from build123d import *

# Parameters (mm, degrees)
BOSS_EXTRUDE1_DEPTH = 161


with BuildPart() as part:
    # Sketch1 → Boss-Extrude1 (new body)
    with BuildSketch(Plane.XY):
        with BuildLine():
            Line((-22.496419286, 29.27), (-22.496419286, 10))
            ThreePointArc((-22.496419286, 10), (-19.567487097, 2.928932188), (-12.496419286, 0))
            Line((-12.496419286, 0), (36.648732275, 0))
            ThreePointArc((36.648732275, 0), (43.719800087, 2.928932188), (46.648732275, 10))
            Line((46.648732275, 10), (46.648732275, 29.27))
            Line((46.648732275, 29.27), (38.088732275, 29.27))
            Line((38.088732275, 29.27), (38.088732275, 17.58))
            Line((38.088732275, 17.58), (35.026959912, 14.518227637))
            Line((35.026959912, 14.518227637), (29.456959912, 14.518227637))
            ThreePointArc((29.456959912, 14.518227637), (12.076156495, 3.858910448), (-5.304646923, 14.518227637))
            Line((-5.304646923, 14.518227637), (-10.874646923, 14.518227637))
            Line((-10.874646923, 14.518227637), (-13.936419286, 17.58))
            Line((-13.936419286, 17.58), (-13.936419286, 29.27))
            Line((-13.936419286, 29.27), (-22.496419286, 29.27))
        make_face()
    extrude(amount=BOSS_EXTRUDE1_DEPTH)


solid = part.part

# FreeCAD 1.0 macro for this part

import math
import FreeCAD as App
import Part
import Sketcher
from FreeCAD import Vector
Q = App.Units.Quantity

doc = App.newDocument("Part")
params = doc.addObject("Spreadsheet::Sheet", "Params")
for row, (alias, value) in enumerate([
    ("sketch1_radius", "10 mm"),
    ("sketch1_radius2", "19.5 mm"),
    ("sketch1_width", "8.56 mm"),
    ("sketch1_width2", "5.57 mm"),
    ("sketch1_height", "19.27 mm"),
    ("pad1_length", "161 mm"),
], start=1):
    params.set(f"A{row}", alias)
    params.set(f"B{row}", "=" + value)
    params.setAlias(f"B{row}", alias)

body = doc.addObject("PartDesign::Body", "Body")

sketch1 = body.newObject("Sketcher::SketchObject", "Sketch")
sketch1.AttachmentSupport = (doc.getObject("XY_Plane"), [""])
sketch1.MapMode = "FlatFace"
sketch1.addGeometry([
    Part.LineSegment(Vector(-22.5, 29.3, 0), Vector(-22.5, 10, 0)),
    Part.ArcOfCircle(Part.Circle(Vector(-12.5, 10, 0), Vector(0, 0, 1), 10), math.radians(-180), math.radians(-90)),
    Part.LineSegment(Vector(-12.5, 0, 0), Vector(36.6, 0, 0)),
    Part.ArcOfCircle(Part.Circle(Vector(36.6, 10, 0), Vector(0, 0, 1), 10), math.radians(-90), math.radians(0)),
    Part.LineSegment(Vector(46.6, 10, 0), Vector(46.6, 29.3, 0)),
    Part.LineSegment(Vector(46.6, 29.3, 0), Vector(38.1, 29.3, 0)),
    Part.LineSegment(Vector(38.1, 29.3, 0), Vector(38.1, 17.6, 0)),
    Part.LineSegment(Vector(38.1, 17.6, 0), Vector(35, 14.5, 0)),
    Part.LineSegment(Vector(35, 14.5, 0), Vector(29.5, 14.5, 0)),
    Part.ArcOfCircle(Part.Circle(Vector(12.1, 23.4, 0), Vector(0, 0, 1), 19.5), math.radians(-153), math.radians(-27)),
    Part.LineSegment(Vector(-5.3, 14.5, 0), Vector(-10.9, 14.5, 0)),
    Part.LineSegment(Vector(-10.9, 14.5, 0), Vector(-13.9, 17.6, 0)),
    Part.LineSegment(Vector(-13.9, 17.6, 0), Vector(-13.9, 29.3, 0)),
    Part.LineSegment(Vector(-13.9, 29.3, 0), Vector(-22.5, 29.3, 0)),
], False)
sketch1.addConstraint([
    Sketcher.Constraint("Tangent", 0, 2, 1, 1),
    Sketcher.Constraint("Tangent", 1, 2, 2, 1),
    Sketcher.Constraint("Tangent", 2, 2, 3, 1),
    Sketcher.Constraint("Tangent", 3, 2, 4, 1),
    Sketcher.Constraint("Coincident", 4, 2, 5, 1),
    Sketcher.Constraint("Coincident", 5, 2, 6, 1),
    Sketcher.Constraint("Coincident", 6, 2, 7, 1),
    Sketcher.Constraint("Coincident", 7, 2, 8, 1),
    Sketcher.Constraint("Coincident", 8, 2, 9, 2),
    Sketcher.Constraint("Coincident", 9, 1, 10, 1),
    Sketcher.Constraint("Coincident", 10, 2, 11, 1),
    Sketcher.Constraint("Coincident", 11, 2, 12, 1),
    Sketcher.Constraint("Coincident", 12, 2, 13, 1),
    Sketcher.Constraint("Coincident", 13, 2, 0, 1),
    Sketcher.Constraint("Vertical", 0),
    Sketcher.Constraint("Horizontal", 2),
    Sketcher.Constraint("Vertical", 4),
    Sketcher.Constraint("Horizontal", 5),
    Sketcher.Constraint("Vertical", 6),
    Sketcher.Constraint("Horizontal", 8),
    Sketcher.Constraint("Horizontal", 10),
    Sketcher.Constraint("Vertical", 12),
    Sketcher.Constraint("Horizontal", 13),
    Sketcher.Constraint("Equal", 1, 3),
    Sketcher.Constraint("PointOnObject", 1, 2, -1),
    Sketcher.Constraint("Perpendicular", 7, 11),
    Sketcher.Constraint("Horizontal", 8, 2, 9, 1),
    Sketcher.Constraint("Horizontal", 6, 2, 11, 2),
    Sketcher.Constraint("Horizontal", 5, 2, 12, 2),
    Sketcher.Constraint("Equal", 8, 10),
    Sketcher.Constraint("Equal", 5, 13),
    Sketcher.Constraint("Equal", 7, 11),
    Sketcher.Constraint("Radius", 1, Q("10 mm")),
    Sketcher.Constraint("Radius", 9, Q("19.5 mm")),
    Sketcher.Constraint("DistanceX", 5, 2, 5, 1, Q("8.56 mm")),
    Sketcher.Constraint("DistanceX", 8, 2, 8, 1, Q("5.57 mm")),
    Sketcher.Constraint("DistanceY", 0, 2, 0, 1, Q("19.27 mm")),
    Sketcher.Constraint("DistanceY", 6, 2, 6, 1, Q("11.69 mm")),
    Sketcher.Constraint("Distance", 7, Q("4.33 mm")),
    Sketcher.Constraint("DistanceX", 2, 1, 2, 2, Q("49.145152 mm")),
    Sketcher.Constraint("DistanceX", 1, 3, -1, 1, Q("12.496419 mm")),
])
sketch1.setExpression("Constraints[32]", "Params.sketch1_radius")
sketch1.setExpression("Constraints[33]", "Params.sketch1_radius2")
sketch1.setExpression("Constraints[34]", "Params.sketch1_width")
sketch1.setExpression("Constraints[35]", "Params.sketch1_width2")
sketch1.setExpression("Constraints[36]", "Params.sketch1_height")
pad1 = body.newObject("PartDesign::Pad", "Pad")
pad1.Profile = sketch1
pad1.setExpression("Length", "Params.pad1_length")

doc.recompute()
